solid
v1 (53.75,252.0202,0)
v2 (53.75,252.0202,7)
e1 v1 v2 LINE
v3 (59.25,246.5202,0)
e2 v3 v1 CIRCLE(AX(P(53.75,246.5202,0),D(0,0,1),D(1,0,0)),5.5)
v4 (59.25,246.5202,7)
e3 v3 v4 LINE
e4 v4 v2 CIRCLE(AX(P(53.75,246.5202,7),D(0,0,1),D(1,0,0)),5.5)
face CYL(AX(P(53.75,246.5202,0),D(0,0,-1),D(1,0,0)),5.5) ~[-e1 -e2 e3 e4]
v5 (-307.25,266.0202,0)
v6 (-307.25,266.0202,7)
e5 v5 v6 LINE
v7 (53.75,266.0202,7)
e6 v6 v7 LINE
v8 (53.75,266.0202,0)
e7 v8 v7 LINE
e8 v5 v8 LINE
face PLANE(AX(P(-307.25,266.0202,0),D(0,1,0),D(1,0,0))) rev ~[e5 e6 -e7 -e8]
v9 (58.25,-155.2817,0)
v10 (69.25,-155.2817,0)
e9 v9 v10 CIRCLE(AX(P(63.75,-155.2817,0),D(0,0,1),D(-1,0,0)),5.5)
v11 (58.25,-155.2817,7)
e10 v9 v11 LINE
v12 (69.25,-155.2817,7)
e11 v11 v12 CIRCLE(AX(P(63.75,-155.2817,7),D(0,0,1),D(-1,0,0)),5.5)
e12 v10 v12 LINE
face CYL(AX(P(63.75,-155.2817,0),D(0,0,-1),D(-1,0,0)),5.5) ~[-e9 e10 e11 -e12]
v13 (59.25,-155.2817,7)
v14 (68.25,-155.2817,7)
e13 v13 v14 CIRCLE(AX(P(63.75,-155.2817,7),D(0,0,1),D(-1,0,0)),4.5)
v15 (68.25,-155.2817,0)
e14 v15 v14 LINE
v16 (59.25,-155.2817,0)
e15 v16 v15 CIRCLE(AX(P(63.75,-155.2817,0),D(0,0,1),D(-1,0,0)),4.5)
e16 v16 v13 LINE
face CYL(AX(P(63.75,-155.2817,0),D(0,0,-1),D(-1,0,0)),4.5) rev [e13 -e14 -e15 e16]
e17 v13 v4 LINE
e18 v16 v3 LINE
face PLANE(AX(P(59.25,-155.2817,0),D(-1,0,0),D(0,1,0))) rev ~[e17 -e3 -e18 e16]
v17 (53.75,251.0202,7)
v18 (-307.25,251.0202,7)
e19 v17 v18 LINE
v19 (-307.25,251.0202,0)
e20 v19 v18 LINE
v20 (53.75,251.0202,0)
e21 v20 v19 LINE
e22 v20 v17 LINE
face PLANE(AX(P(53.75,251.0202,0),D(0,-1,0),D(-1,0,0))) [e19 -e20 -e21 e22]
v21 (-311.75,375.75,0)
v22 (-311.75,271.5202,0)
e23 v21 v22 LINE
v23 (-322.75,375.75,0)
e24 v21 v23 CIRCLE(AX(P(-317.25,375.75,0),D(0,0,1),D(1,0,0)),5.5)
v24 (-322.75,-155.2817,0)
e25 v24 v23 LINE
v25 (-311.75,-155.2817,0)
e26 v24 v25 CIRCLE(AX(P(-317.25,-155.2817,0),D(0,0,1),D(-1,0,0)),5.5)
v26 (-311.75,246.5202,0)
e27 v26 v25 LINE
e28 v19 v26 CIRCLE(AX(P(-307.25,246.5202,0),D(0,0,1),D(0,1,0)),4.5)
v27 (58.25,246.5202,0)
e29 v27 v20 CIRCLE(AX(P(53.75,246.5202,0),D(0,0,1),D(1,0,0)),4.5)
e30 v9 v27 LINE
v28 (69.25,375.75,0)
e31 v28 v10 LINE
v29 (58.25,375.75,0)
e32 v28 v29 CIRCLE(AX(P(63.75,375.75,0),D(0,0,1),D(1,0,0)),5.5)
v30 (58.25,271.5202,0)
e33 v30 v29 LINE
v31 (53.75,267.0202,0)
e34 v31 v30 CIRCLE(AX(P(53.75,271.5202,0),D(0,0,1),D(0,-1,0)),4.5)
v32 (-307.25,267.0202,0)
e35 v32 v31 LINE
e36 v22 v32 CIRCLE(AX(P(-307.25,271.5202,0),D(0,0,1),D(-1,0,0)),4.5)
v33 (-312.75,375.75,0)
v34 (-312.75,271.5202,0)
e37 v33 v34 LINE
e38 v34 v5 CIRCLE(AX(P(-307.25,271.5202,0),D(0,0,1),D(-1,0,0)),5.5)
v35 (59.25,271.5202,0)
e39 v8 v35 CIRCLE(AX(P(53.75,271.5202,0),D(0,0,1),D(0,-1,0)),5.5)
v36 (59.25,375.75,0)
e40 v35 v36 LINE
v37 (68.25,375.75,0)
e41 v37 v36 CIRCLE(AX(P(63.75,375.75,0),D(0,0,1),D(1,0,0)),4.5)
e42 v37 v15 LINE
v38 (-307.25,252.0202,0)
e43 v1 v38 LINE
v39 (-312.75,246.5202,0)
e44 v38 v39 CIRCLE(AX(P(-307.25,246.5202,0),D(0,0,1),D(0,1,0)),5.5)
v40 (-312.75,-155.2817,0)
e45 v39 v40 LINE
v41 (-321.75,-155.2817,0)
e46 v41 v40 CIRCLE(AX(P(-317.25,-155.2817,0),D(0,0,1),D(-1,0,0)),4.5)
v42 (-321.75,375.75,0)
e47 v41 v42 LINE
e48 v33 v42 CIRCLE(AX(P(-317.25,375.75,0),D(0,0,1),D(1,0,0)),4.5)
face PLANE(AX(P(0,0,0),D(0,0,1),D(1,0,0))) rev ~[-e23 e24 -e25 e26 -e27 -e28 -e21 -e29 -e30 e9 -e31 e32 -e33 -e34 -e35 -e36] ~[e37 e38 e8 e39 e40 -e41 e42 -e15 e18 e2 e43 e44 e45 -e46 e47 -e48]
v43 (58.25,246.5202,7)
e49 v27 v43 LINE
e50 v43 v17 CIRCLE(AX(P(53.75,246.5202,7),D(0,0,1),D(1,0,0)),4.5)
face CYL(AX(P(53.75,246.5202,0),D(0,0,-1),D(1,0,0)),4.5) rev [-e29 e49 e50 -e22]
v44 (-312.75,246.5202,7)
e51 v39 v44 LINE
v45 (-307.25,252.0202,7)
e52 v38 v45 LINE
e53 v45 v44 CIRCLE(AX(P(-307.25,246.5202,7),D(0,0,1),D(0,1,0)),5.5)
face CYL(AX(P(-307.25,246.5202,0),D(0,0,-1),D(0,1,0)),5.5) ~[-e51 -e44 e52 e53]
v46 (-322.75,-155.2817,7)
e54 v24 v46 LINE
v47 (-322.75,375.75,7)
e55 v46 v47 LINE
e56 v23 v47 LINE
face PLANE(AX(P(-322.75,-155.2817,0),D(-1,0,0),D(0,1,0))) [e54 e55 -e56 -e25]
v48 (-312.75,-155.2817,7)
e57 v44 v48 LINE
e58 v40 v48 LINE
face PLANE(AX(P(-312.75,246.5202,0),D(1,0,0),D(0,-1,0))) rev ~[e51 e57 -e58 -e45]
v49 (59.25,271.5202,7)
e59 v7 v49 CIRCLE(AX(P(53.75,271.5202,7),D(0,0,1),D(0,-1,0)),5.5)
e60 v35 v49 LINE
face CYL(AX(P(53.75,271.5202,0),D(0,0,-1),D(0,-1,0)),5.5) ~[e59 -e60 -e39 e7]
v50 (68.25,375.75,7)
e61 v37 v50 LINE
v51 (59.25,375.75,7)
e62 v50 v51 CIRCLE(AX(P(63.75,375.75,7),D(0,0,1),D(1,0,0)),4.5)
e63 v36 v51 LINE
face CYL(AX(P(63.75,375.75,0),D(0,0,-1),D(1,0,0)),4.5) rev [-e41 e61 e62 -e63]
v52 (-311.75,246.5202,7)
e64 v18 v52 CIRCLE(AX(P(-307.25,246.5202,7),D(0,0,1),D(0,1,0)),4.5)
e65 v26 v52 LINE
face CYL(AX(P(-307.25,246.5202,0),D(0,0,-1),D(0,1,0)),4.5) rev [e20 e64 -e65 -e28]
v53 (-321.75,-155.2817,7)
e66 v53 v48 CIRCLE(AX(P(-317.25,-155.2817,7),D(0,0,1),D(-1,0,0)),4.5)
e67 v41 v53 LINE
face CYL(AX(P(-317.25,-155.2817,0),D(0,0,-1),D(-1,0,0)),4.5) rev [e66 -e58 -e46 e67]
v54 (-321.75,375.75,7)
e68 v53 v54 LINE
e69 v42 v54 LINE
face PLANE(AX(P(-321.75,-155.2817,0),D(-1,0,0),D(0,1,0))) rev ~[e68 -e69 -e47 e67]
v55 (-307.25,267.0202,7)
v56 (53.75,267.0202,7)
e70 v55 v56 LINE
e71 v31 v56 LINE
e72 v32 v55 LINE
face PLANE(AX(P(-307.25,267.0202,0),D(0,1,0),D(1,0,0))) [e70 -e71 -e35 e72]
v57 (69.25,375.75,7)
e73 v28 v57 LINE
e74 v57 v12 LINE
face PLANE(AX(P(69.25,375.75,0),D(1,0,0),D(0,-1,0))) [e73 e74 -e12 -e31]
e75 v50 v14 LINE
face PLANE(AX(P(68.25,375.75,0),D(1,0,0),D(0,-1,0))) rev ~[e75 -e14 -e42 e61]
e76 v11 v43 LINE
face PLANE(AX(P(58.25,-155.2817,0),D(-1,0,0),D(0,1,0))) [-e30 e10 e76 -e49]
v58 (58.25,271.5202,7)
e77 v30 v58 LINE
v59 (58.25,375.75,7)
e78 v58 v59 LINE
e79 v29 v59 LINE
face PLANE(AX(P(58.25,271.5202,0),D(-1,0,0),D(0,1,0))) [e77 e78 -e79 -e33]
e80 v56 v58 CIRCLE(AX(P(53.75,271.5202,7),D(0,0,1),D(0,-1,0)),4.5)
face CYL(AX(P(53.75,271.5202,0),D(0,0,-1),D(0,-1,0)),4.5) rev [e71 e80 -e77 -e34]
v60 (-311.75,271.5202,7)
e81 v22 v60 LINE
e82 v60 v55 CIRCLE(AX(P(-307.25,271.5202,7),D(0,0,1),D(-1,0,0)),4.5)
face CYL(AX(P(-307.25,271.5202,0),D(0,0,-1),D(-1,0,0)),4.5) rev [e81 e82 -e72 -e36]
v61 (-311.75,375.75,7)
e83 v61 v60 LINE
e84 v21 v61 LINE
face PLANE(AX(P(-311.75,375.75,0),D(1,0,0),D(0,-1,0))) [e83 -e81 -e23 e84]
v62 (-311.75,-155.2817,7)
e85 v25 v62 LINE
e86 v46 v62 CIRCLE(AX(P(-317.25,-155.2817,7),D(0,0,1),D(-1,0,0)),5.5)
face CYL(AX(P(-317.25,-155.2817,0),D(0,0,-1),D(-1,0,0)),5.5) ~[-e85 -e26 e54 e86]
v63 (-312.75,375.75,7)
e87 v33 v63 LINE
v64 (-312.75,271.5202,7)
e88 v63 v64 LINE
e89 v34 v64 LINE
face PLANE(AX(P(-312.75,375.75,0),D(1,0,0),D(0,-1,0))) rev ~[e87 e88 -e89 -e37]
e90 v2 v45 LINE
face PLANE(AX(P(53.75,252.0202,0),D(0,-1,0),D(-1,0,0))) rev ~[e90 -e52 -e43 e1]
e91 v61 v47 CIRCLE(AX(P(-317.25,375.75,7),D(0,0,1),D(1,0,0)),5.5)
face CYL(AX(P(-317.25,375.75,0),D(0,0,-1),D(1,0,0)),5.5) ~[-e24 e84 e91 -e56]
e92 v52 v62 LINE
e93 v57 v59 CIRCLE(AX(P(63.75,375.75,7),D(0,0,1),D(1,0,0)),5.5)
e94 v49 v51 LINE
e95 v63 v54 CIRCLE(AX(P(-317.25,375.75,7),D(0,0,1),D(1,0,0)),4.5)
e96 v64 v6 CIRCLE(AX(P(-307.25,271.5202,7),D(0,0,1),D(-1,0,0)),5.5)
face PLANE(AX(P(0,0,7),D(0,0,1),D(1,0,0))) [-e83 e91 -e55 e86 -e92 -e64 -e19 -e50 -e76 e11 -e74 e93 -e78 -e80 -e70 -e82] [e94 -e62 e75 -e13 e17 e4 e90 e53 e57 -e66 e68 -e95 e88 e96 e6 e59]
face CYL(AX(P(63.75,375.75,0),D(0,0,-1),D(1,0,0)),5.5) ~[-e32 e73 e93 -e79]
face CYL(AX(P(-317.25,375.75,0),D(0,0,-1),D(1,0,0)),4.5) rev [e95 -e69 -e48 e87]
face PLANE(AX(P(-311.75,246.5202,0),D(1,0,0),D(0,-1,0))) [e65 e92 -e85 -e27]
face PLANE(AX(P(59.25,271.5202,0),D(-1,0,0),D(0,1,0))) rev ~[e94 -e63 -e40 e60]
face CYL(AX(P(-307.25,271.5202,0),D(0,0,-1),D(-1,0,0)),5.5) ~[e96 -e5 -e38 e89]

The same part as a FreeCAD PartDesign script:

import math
import FreeCAD as App
import Part
import Sketcher

V = App.Vector
Q = App.Units.Quantity

doc = App.newDocument("Part")
body = doc.addObject("PartDesign::Body", "Body")

# Sketch on XY plane
sketch1 = doc.addObject("Sketcher::SketchObject", "Sketch")
body.addObject(sketch1)
sketch1.AttachmentSupport = (doc.XY_Plane, [""])
sketch1.MapMode = "FlatFace"
sketch1.addGeometry([
    Part.LineSegment(V(53.8, 267, 0), V(-307.2, 267, 0)),  # 0
    Part.ArcOfCircle(Part.Circle(V(-307.2, 271.5, 0), V(0, 0, 1), 4.5), math.radians(180), math.radians(270)),  # 1
    Part.LineSegment(V(-311.8, 271.5, 0), V(-311.8, 375.8, 0)),  # 2
    Part.ArcOfCircle(Part.Circle(V(-317.2, 375.8, 0), V(0, 0, 1), 5.5), math.radians(0), math.radians(180)),  # 3
    Part.LineSegment(V(-322.8, 375.8, 0), V(-322.8, -155.3, 0)),  # 4
    Part.ArcOfCircle(Part.Circle(V(-317.2, -155.3, 0), V(0, 0, 1), 5.5), math.radians(180), math.radians(360)),  # 5
    Part.LineSegment(V(-311.8, -155.3, 0), V(-311.8, 246.5, 0)),  # 6
    Part.ArcOfCircle(Part.Circle(V(-307.2, 246.5, 0), V(0, 0, 1), 4.5), math.radians(90), math.radians(180)),  # 7
    Part.LineSegment(V(-307.2, 251, 0), V(53.8, 251, 0)),  # 8
    Part.ArcOfCircle(Part.Circle(V(53.8, 246.5, 0), V(0, 0, 1), 4.5), math.radians(0), math.radians(90)),  # 9
    Part.LineSegment(V(58.2, 246.5, 0), V(58.2, -155.3, 0)),  # 10
    Part.ArcOfCircle(Part.Circle(V(63.8, -155.3, 0), V(0, 0, 1), 5.5), math.radians(180), math.radians(360)),  # 11
    Part.LineSegment(V(69.2, -155.3, 0), V(69.2, 375.8, 0)),  # 12
    Part.ArcOfCircle(Part.Circle(V(63.8, 375.8, 0), V(0, 0, 1), 5.5), math.radians(0), math.radians(180)),  # 13
    Part.LineSegment(V(58.2, 375.8, 0), V(58.2, 271.5, 0)),  # 14
    Part.ArcOfCircle(Part.Circle(V(53.8, 271.5, 0), V(0, 0, 1), 4.5), math.radians(-90), math.radians(0)),  # 15
    Part.ArcOfCircle(Part.Circle(V(-307.2, 271.5, 0), V(0, 0, 1), 5.5), math.radians(180), math.radians(270)),  # 16
    Part.LineSegment(V(-307.2, 266, 0), V(53.8, 266, 0)),  # 17
    Part.ArcOfCircle(Part.Circle(V(53.8, 271.5, 0), V(0, 0, 1), 5.5), math.radians(-90), math.radians(0)),  # 18
    Part.LineSegment(V(59.2, 271.5, 0), V(59.2, 375.8, 0)),  # 19
    Part.ArcOfCircle(Part.Circle(V(63.8, 375.8, 0), V(0, 0, 1), 4.5), math.radians(0), math.radians(180)),  # 20
    Part.LineSegment(V(68.2, 375.8, 0), V(68.2, -155.3, 0)),  # 21
    Part.ArcOfCircle(Part.Circle(V(63.8, -155.3, 0), V(0, 0, 1), 4.5), math.radians(180), math.radians(360)),  # 22
    Part.LineSegment(V(59.2, -155.3, 0), V(59.2, 246.5, 0)),  # 23
    Part.ArcOfCircle(Part.Circle(V(53.8, 246.5, 0), V(0, 0, 1), 5.5), math.radians(0), math.radians(90)),  # 24
    Part.LineSegment(V(53.8, 252, 0), V(-307.2, 252, 0)),  # 25
    Part.ArcOfCircle(Part.Circle(V(-307.2, 246.5, 0), V(0, 0, 1), 5.5), math.radians(90), math.radians(180)),  # 26
    Part.LineSegment(V(-312.8, 246.5, 0), V(-312.8, -155.3, 0)),  # 27
    Part.ArcOfCircle(Part.Circle(V(-317.2, -155.3, 0), V(0, 0, 1), 4.5), math.radians(180), math.radians(360)),  # 28
    Part.LineSegment(V(-321.8, -155.3, 0), V(-321.8, 375.8, 0)),  # 29
    Part.ArcOfCircle(Part.Circle(V(-317.2, 375.8, 0), V(0, 0, 1), 4.5), math.radians(0), math.radians(180)),  # 30
    Part.LineSegment(V(-312.8, 375.8, 0), V(-312.8, 271.5, 0)),  # 31
], False)
sketch1.addConstraint([
    Sketcher.Constraint("Tangent", 0, 2, 1, 2),
    Sketcher.Constraint("Tangent", 1, 1, 2, 1),
    Sketcher.Constraint("Tangent", 2, 2, 3, 1),
    Sketcher.Constraint("Tangent", 3, 2, 4, 1),
    Sketcher.Constraint("Tangent", 4, 2, 5, 1),
    Sketcher.Constraint("Tangent", 5, 2, 6, 1),
    Sketcher.Constraint("Tangent", 6, 2, 7, 2),
    Sketcher.Constraint("Tangent", 7, 1, 8, 1),
    Sketcher.Constraint("Tangent", 8, 2, 9, 2),
    Sketcher.Constraint("Tangent", 9, 1, 10, 1),
    Sketcher.Constraint("Tangent", 10, 2, 11, 1),
    Sketcher.Constraint("Tangent", 11, 2, 12, 1),
    Sketcher.Constraint("Tangent", 12, 2, 13, 1),
    Sketcher.Constraint("Tangent", 13, 2, 14, 1),
    Sketcher.Constraint("Tangent", 14, 2, 15, 2),
    Sketcher.Constraint("Tangent", 15, 1, 0, 1),
    Sketcher.Constraint("Tangent", 16, 2, 17, 1),
    Sketcher.Constraint("Tangent", 17, 2, 18, 1),
    Sketcher.Constraint("Tangent", 18, 2, 19, 1),
    Sketcher.Constraint("Tangent", 19, 2, 20, 2),
    Sketcher.Constraint("Tangent", 20, 1, 21, 1),
    Sketcher.Constraint("Tangent", 21, 2, 22, 2),
    Sketcher.Constraint("Tangent", 22, 1, 23, 1),
    Sketcher.Constraint("Tangent", 23, 2, 24, 1),
    Sketcher.Constraint("Tangent", 24, 2, 25, 1),
    Sketcher.Constraint("Tangent", 25, 2, 26, 1),
    Sketcher.Constraint("Tangent", 26, 2, 27, 1),
    Sketcher.Constraint("Tangent", 27, 2, 28, 2),
    Sketcher.Constraint("Tangent", 28, 1, 29, 1),
    Sketcher.Constraint("Tangent", 29, 2, 30, 2),
    Sketcher.Constraint("Tangent", 30, 1, 31, 1),
    Sketcher.Constraint("Tangent", 31, 2, 16, 1),
    Sketcher.Constraint("Horizontal", 0),
    Sketcher.Constraint("Vertical", 2),
    Sketcher.Constraint("Vertical", 4),
    Sketcher.Constraint("Vertical", 6),
    Sketcher.Constraint("Horizontal", 8),
    Sketcher.Constraint("Vertical", 10),
    Sketcher.Constraint("Vertical", 12),
    Sketcher.Constraint("Vertical", 14),
    Sketcher.Constraint("Horizontal", 17),
    Sketcher.Constraint("Vertical", 19),
    Sketcher.Constraint("Vertical", 21),
    Sketcher.Constraint("Vertical", 23),
    Sketcher.Constraint("Horizontal", 25),
    Sketcher.Constraint("Vertical", 27),
    Sketcher.Constraint("Vertical", 29),
    Sketcher.Constraint("Vertical", 31),
    Sketcher.Constraint("Coincident", 16, 3, 1, 3),
    Sketcher.Constraint("Coincident", 18, 3, 15, 3),
    Sketcher.Constraint("Coincident", 20, 3, 13, 3),
    Sketcher.Constraint("Coincident", 22, 3, 11, 3),
    Sketcher.Constraint("Coincident", 24, 3, 9, 3),
    Sketcher.Constraint("Coincident", 26, 3, 7, 3),
    Sketcher.Constraint("Coincident", 28, 3, 5, 3),
    Sketcher.Constraint("Equal", 3, 5),
    Sketcher.Constraint("Equal", 1, 7),
    Sketcher.Constraint("Equal", 7, 9),
    Sketcher.Constraint("Equal", 5, 11),
    Sketcher.Constraint("Equal", 11, 13),
    Sketcher.Constraint("Equal", 9, 15),
    Sketcher.Constraint("Equal", 13, 16),
    Sketcher.Constraint("Horizontal", 5, 3, 11, 3),
    Sketcher.Constraint("Horizontal", 3, 3, 13, 3),
    Sketcher.Constraint("Horizontal", 20, 3, 30, 3),
    Sketcher.Constraint("Radius", 1, Q("4.5 mm")),
    Sketcher.Constraint("Radius", 3, Q("5.5 mm")),
    Sketcher.Constraint("DistanceX", 0, 2, 0, 1, Q("361 mm")),
    Sketcher.Constraint("DistanceY", 7, 3, 1, 3, Q("25 mm")),
    Sketcher.Constraint("DistanceY", 6, 1, 6, 2, Q("401.802 mm")),
    Sketcher.Constraint("DistanceX", 1, 3, -1, 1, Q("307.25 mm")),
    Sketcher.Constraint("DistanceY", -1, 1, 3, 3, Q("375.75 mm")),
    Sketcher.Constraint("DistanceY", 2, 1, 2, 2, Q("104.2298 mm")),
])
pad1 = doc.addObject("PartDesign::Pad", "Pad")
body.addObject(pad1)
pad1.Profile = sketch1
pad1.Length = 7

doc.recompute()
